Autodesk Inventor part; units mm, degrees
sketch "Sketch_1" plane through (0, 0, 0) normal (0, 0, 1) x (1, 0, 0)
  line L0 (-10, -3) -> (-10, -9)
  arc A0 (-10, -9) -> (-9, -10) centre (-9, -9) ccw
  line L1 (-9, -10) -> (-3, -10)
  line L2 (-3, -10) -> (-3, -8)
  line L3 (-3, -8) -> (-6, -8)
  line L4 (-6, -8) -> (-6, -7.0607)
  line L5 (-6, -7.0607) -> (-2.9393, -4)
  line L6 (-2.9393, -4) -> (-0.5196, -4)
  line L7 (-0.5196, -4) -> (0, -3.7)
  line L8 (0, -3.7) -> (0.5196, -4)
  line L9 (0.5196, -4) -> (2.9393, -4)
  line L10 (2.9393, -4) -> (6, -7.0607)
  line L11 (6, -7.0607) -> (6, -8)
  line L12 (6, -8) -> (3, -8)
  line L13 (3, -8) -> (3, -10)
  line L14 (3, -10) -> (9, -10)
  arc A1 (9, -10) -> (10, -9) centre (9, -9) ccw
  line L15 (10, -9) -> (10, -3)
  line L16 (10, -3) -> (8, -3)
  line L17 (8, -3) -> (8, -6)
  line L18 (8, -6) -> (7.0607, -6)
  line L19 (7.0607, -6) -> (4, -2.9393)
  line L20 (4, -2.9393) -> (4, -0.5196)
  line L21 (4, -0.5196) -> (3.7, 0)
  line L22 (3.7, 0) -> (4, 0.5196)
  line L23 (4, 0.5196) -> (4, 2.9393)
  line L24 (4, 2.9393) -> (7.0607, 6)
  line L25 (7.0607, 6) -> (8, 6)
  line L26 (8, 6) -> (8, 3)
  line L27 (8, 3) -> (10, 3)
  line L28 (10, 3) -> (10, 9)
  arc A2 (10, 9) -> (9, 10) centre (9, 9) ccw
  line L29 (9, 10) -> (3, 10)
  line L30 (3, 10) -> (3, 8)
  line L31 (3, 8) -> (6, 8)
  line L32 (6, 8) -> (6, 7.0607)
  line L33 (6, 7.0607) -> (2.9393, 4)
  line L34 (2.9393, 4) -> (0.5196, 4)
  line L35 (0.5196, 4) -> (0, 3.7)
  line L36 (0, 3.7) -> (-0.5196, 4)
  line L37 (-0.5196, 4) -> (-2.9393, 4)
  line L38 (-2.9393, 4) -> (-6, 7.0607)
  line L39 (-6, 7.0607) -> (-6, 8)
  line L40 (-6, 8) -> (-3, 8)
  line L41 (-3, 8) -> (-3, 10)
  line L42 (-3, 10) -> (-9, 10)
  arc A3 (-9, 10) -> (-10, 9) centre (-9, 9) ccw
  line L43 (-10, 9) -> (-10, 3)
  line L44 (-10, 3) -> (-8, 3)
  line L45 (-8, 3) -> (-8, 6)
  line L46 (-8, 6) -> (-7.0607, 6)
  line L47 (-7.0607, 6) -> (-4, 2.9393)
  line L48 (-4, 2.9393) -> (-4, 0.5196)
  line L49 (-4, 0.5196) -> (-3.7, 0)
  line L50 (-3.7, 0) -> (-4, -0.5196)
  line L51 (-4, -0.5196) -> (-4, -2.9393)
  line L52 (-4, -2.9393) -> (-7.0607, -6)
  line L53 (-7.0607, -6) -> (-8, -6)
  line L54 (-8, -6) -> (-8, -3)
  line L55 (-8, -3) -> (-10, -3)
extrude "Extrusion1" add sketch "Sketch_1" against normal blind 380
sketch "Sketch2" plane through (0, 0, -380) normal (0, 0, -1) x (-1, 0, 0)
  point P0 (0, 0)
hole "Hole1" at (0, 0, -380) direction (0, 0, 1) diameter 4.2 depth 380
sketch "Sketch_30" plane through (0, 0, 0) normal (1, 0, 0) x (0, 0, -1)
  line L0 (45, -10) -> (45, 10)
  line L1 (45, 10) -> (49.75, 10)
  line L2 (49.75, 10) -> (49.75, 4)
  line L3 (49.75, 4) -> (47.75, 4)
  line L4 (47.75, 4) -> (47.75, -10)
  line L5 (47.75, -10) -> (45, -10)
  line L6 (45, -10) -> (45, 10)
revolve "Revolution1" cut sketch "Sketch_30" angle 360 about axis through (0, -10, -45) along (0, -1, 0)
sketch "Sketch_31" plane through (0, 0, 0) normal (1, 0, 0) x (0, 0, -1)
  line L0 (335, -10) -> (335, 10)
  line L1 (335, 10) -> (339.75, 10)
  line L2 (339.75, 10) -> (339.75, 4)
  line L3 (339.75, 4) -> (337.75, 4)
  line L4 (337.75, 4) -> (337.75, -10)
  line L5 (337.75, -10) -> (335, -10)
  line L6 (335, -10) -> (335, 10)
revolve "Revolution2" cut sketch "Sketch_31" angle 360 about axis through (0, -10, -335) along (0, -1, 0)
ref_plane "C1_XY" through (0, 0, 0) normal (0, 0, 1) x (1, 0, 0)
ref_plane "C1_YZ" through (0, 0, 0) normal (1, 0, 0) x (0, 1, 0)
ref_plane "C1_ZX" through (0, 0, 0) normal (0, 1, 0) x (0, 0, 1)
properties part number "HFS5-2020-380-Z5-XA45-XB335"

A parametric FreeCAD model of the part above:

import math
import FreeCAD as App
import Part
import Sketcher
from FreeCAD import Vector
Q = App.Units.Quantity


def add_polygon(sketch, points):
    """Adds a closed chain of lines whose ends are joined by coincident constraints."""
    first, n = sketch.GeometryCount, len(points)
    for a, b in zip(points, points[1:] + points[:1]):
        sketch.addGeometry(Part.LineSegment(App.Vector(*a, 0), App.Vector(*b, 0)), False)
    for i in range(n):
        sketch.addConstraint(Sketcher.Constraint("Coincident", first + i, 2, first + (i + 1) % n, 1))

doc = App.newDocument("Part")
body = doc.addObject("PartDesign::Body", "Body")

sketch1 = body.newObject("Sketcher::SketchObject", "Sketch")
sketch1.AttachmentSupport = (doc.getObject("XY_Plane"), [""])
sketch1.MapMode = "FlatFace"
sketch1.addGeometry(Part.LineSegment(Vector(-8, -3, 0), Vector(-10, -3, 0)), False)
sketch1.addGeometry(Part.LineSegment(Vector(-10, -3, 0), Vector(-10, -9, 0)), False)
sketch1.addGeometry(Part.ArcOfCircle(Part.Circle(Vector(-9, -9, 0), Vector(0, 0, 1), 1), math.radians(180), math.radians(270)), False)
sketch1.addGeometry(Part.LineSegment(Vector(-9, -10, 0), Vector(-3, -10, 0)), False)
sketch1.addGeometry(Part.LineSegment(Vector(-3, -10, 0), Vector(-3, -8, 0)), False)
sketch1.addGeometry(Part.LineSegment(Vector(-3, -8, 0), Vector(-6, -8, 0)), False)
sketch1.addGeometry(Part.LineSegment(Vector(-6, -8, 0), Vector(-6, -7.0607, 0)), False)
sketch1.addGeometry(Part.LineSegment(Vector(-6, -7.0607, 0), Vector(-2.9393, -4, 0)), False)
sketch1.addGeometry(Part.LineSegment(Vector(-2.9393, -4, 0), Vector(-0.5196, -4, 0)), False)
sketch1.addGeometry(Part.LineSegment(Vector(-0.5196, -4, 0), Vector(0, -3.7, 0)), False)
sketch1.addGeometry(Part.LineSegment(Vector(0, -3.7, 0), Vector(0.5196, -4, 0)), False)
sketch1.addGeometry(Part.LineSegment(Vector(0.5196, -4, 0), Vector(2.9393, -4, 0)), False)
sketch1.addGeometry(Part.LineSegment(Vector(2.9393, -4, 0), Vector(6, -7.0607, 0)), False)
sketch1.addGeometry(Part.LineSegment(Vector(6, -7.0607, 0), Vector(6, -8, 0)), False)
sketch1.addGeometry(Part.LineSegment(Vector(6, -8, 0), Vector(3, -8, 0)), False)
sketch1.addGeometry(Part.LineSegment(Vector(3, -8, 0), Vector(3, -10, 0)), False)
sketch1.addGeometry(Part.LineSegment(Vector(3, -10, 0), Vector(9, -10, 0)), False)
sketch1.addGeometry(Part.ArcOfCircle(Part.Circle(Vector(9, -9, 0), Vector(0, 0, 1), 1), math.radians(-90), math.radians(0)), False)
sketch1.addGeometry(Part.LineSegment(Vector(10, -9, 0), Vector(10, -3, 0)), False)
sketch1.addGeometry(Part.LineSegment(Vector(10, -3, 0), Vector(8, -3, 0)), False)
sketch1.addGeometry(Part.LineSegment(Vector(8, -3, 0), Vector(8, -6, 0)), False)
sketch1.addGeometry(Part.LineSegment(Vector(8, -6, 0), Vector(7.0607, -6, 0)), False)
sketch1.addGeometry(Part.LineSegment(Vector(7.0607, -6, 0), Vector(4, -2.9393, 0)), False)
sketch1.addGeometry(Part.LineSegment(Vector(4, -2.9393, 0), Vector(4, -0.5196, 0)), False)
sketch1.addGeometry(Part.LineSegment(Vector(4, -0.5196, 0), Vector(3.7, 0, 0)), False)
sketch1.addGeometry(Part.LineSegment(Vector(3.7, 0, 0), Vector(4, 0.5196, 0)), False)
sketch1.addGeometry(Part.LineSegment(Vector(4, 0.5196, 0), Vector(4, 2.9393, 0)), False)
sketch1.addGeometry(Part.LineSegment(Vector(4, 2.9393, 0), Vector(7.0607, 6, 0)), False)
sketch1.addGeometry(Part.LineSegment(Vector(7.0607, 6, 0), Vector(8, 6, 0)), False)
sketch1.addGeometry(Part.LineSegment(Vector(8, 6, 0), Vector(8, 3, 0)), False)
sketch1.addGeometry(Part.LineSegment(Vector(8, 3, 0), Vector(10, 3, 0)), False)
sketch1.addGeometry(Part.LineSegment(Vector(10, 3, 0), Vector(10, 9, 0)), False)
sketch1.addGeometry(Part.ArcOfCircle(Part.Circle(Vector(9, 9, 0), Vector(0, 0, 1), 1), math.radians(0), math.radians(90)), False)
sketch1.addGeometry(Part.LineSegment(Vector(9, 10, 0), Vector(3, 10, 0)), False)
sketch1.addGeometry(Part.LineSegment(Vector(3, 10, 0), Vector(3, 8, 0)), False)
sketch1.addGeometry(Part.LineSegment(Vector(3, 8, 0), Vector(6, 8, 0)), False)
sketch1.addGeometry(Part.LineSegment(Vector(6, 8, 0), Vector(6, 7.0607, 0)), False)
sketch1.addGeometry(Part.LineSegment(Vector(6, 7.0607, 0), Vector(2.9393, 4, 0)), False)
sketch1.addGeometry(Part.LineSegment(Vector(2.9393, 4, 0), Vector(0.5196, 4, 0)), False)
sketch1.addGeometry(Part.LineSegment(Vector(0.5196, 4, 0), Vector(0, 3.7, 0)), False)
sketch1.addGeometry(Part.LineSegment(Vector(0, 3.7, 0), Vector(-0.5196, 4, 0)), False)
sketch1.addGeometry(Part.LineSegment(Vector(-0.5196, 4, 0), Vector(-2.9393, 4, 0)), False)
sketch1.addGeometry(Part.LineSegment(Vector(-2.9393, 4, 0), Vector(-6, 7.0607, 0)), False)
sketch1.addGeometry(Part.LineSegment(Vector(-6, 7.0607, 0), Vector(-6, 8, 0)), False)
sketch1.addGeometry(Part.LineSegment(Vector(-6, 8, 0), Vector(-3, 8, 0)), False)
sketch1.addGeometry(Part.LineSegment(Vector(-3, 8, 0), Vector(-3, 10, 0)), False)
sketch1.addGeometry(Part.LineSegment(Vector(-3, 10, 0), Vector(-9, 10, 0)), False)
sketch1.addGeometry(Part.ArcOfCircle(Part.Circle(Vector(-9, 9, 0), Vector(0, 0, 1), 1), math.radians(90), math.radians(180)), False)
sketch1.addGeometry(Part.LineSegment(Vector(-10, 9, 0), Vector(-10, 3, 0)), False)
sketch1.addGeometry(Part.LineSegment(Vector(-10, 3, 0), Vector(-8, 3, 0)), False)
sketch1.addGeometry(Part.LineSegment(Vector(-8, 3, 0), Vector(-8, 6, 0)), False)
sketch1.addGeometry(Part.LineSegment(Vector(-8, 6, 0), Vector(-7.0607, 6, 0)), False)
sketch1.addGeometry(Part.LineSegment(Vector(-7.0607, 6, 0), Vector(-4, 2.9393, 0)), False)
sketch1.addGeometry(Part.LineSegment(Vector(-4, 2.9393, 0), Vector(-4, 0.5196, 0)), False)
sketch1.addGeometry(Part.LineSegment(Vector(-4, 0.5196, 0), Vector(-3.7, 0, 0)), False)
sketch1.addGeometry(Part.LineSegment(Vector(-3.7, 0, 0), Vector(-4, -0.5196, 0)), False)
sketch1.addGeometry(Part.LineSegment(Vector(-4, -0.5196, 0), Vector(-4, -2.9393, 0)), False)
sketch1.addGeometry(Part.LineSegment(Vector(-4, -2.9393, 0), Vector(-7.0607, -6, 0)), False)
sketch1.addGeometry(Part.LineSegment(Vector(-7.0607, -6, 0), Vector(-8, -6, 0)), False)
sketch1.addGeometry(Part.LineSegment(Vector(-8, -6, 0), Vector(-8, -3, 0)), False)
sketch1.addConstraint(Sketcher.Constraint("Coincident", 0, 2, 1, 1))
sketch1.addConstraint(Sketcher.Constraint("Tangent", 1, 2, 2, 1))
sketch1.addConstraint(Sketcher.Constraint("Tangent", 2, 2, 3, 1))
sketch1.addConstraint(Sketcher.Constraint("Coincident", 3, 2, 4, 1))
sketch1.addConstraint(Sketcher.Constraint("Coincident", 4, 2, 5, 1))
sketch1.addConstraint(Sketcher.Constraint("Coincident", 5, 2, 6, 1))
sketch1.addConstraint(Sketcher.Constraint("Coincident", 6, 2, 7, 1))
sketch1.addConstraint(Sketcher.Constraint("Coincident", 7, 2, 8, 1))
sketch1.addConstraint(Sketcher.Constraint("Coincident", 8, 2, 9, 1))
sketch1.addConstraint(Sketcher.Constraint("Coincident", 9, 2, 10, 1))
sketch1.addConstraint(Sketcher.Constraint("Coincident", 10, 2, 11, 1))
sketch1.addConstraint(Sketcher.Constraint("Coincident", 11, 2, 12, 1))
sketch1.addConstraint(Sketcher.Constraint("Coincident", 12, 2, 13, 1))
sketch1.addConstraint(Sketcher.Constraint("Coincident", 13, 2, 14, 1))
sketch1.addConstraint(Sketcher.Constraint("Coincident", 14, 2, 15, 1))
sketch1.addConstraint(Sketcher.Constraint("Coincident", 15, 2, 16, 1))
sketch1.addConstraint(Sketcher.Constraint("Tangent", 16, 2, 17, 1))
sketch1.addConstraint(Sketcher.Constraint("Tangent", 17, 2, 18, 1))
sketch1.addConstraint(Sketcher.Constraint("Coincident", 18, 2, 19, 1))
sketch1.addConstraint(Sketcher.Constraint("Coincident", 19, 2, 20, 1))
sketch1.addConstraint(Sketcher.Constraint("Coincident", 20, 2, 21, 1))
sketch1.addConstraint(Sketcher.Constraint("Coincident", 21, 2, 22, 1))
sketch1.addConstraint(Sketcher.Constraint("Coincident", 22, 2, 23, 1))
sketch1.addConstraint(Sketcher.Constraint("Coincident", 23, 2, 24, 1))
sketch1.addConstraint(Sketcher.Constraint("Coincident", 24, 2, 25, 1))
sketch1.addConstraint(Sketcher.Constraint("Coincident", 25, 2, 26, 1))
sketch1.addConstraint(Sketcher.Constraint("Coincident", 26, 2, 27, 1))
sketch1.addConstraint(Sketcher.Constraint("Coincident", 27, 2, 28, 1))
sketch1.addConstraint(Sketcher.Constraint("Coincident", 28, 2, 29, 1))
sketch1.addConstraint(Sketcher.Constraint("Coincident", 29, 2, 30, 1))
sketch1.addConstraint(Sketcher.Constraint("Coincident", 30, 2, 31, 1))
sketch1.addConstraint(Sketcher.Constraint("Tangent", 31, 2, 32, 1))
sketch1.addConstraint(Sketcher.Constraint("Tangent", 32, 2, 33, 1))
sketch1.addConstraint(Sketcher.Constraint("Coincident", 33, 2, 34, 1))
sketch1.addConstraint(Sketcher.Constraint("Coincident", 34, 2, 35, 1))
sketch1.addConstraint(Sketcher.Constraint("Coincident", 35, 2, 36, 1))
sketch1.addConstraint(Sketcher.Constraint("Coincident", 36, 2, 37, 1))
sketch1.addConstraint(Sketcher.Constraint("Coincident", 37, 2, 38, 1))
sketch1.addConstraint(Sketcher.Constraint("Coincident", 38, 2, 39, 1))
sketch1.addConstraint(Sketcher.Constraint("Coincident", 39, 2, 40, 1))
sketch1.addConstraint(Sketcher.Constraint("Coincident", 40, 2, 41, 1))
sketch1.addConstraint(Sketcher.Constraint("Coincident", 41, 2, 42, 1))
sketch1.addConstraint(Sketcher.Constraint("Coincident", 42, 2, 43, 1))
sketch1.addConstraint(Sketcher.Constraint("Coincident", 43, 2, 44, 1))
sketch1.addConstraint(Sketcher.Constraint("Coincident", 44, 2, 45, 1))
sketch1.addConstraint(Sketcher.Constraint("Coincident", 45, 2, 46, 1))
sketch1.addConstraint(Sketcher.Constraint("Tangent", 46, 2, 47, 1))
sketch1.addConstraint(Sketcher.Constraint("Tangent", 47, 2, 48, 1))
sketch1.addConstraint(Sketcher.Constraint("Coincident", 48, 2, 49, 1))
sketch1.addConstraint(Sketcher.Constraint("Coincident", 49, 2, 50, 1))
sketch1.addConstraint(Sketcher.Constraint("Coincident", 50, 2, 51, 1))
sketch1.addConstraint(Sketcher.Constraint("Coincident", 51, 2, 52, 1))
sketch1.addConstraint(Sketcher.Constraint("Coincident", 52, 2, 53, 1))
sketch1.addConstraint(Sketcher.Constraint("Coincident", 53, 2, 54, 1))
sketch1.addConstraint(Sketcher.Constraint("Coincident", 54, 2, 55, 1))
sketch1.addConstraint(Sketcher.Constraint("Coincident", 55, 2, 56, 1))
sketch1.addConstraint(Sketcher.Constraint("Coincident", 56, 2, 57, 1))
sketch1.addConstraint(Sketcher.Constraint("Coincident", 57, 2, 58, 1))
sketch1.addConstraint(Sketcher.Constraint("Coincident", 58, 2, 59, 1))
sketch1.addConstraint(Sketcher.Constraint("Coincident", 59, 2, 0, 1))
sketch1.addConstraint(Sketcher.Constraint("Horizontal", 0))
sketch1.addConstraint(Sketcher.Constraint("Vertical", 1))
sketch1.addConstraint(Sketcher.Constraint("Horizontal", 3))
sketch1.addConstraint(Sketcher.Constraint("Vertical", 4))
sketch1.addConstraint(Sketcher.Constraint("Horizontal", 5))
sketch1.addConstraint(Sketcher.Constraint("Vertical", 6))
sketch1.addConstraint(Sketcher.Constraint("Horizontal", 8))
sketch1.addConstraint(Sketcher.Constraint("Horizontal", 11))
sketch1.addConstraint(Sketcher.Constraint("Vertical", 13))
sketch1.addConstraint(Sketcher.Constraint("Horizontal", 14))
sketch1.addConstraint(Sketcher.Constraint("Vertical", 15))
sketch1.addConstraint(Sketcher.Constraint("Horizontal", 16))
sketch1.addConstraint(Sketcher.Constraint("Vertical", 18))
sketch1.addConstraint(Sketcher.Constraint("Horizontal", 19))
sketch1.addConstraint(Sketcher.Constraint("Vertical", 20))
sketch1.addConstraint(Sketcher.Constraint("Horizontal", 21))
sketch1.addConstraint(Sketcher.Constraint("Vertical", 23))
sketch1.addConstraint(Sketcher.Constraint("Vertical", 26))
sketch1.addConstraint(Sketcher.Constraint("Horizontal", 28))
sketch1.addConstraint(Sketcher.Constraint("Vertical", 29))
sketch1.addConstraint(Sketcher.Constraint("Horizontal", 30))
sketch1.addConstraint(Sketcher.Constraint("Vertical", 31))
sketch1.addConstraint(Sketcher.Constraint("Horizontal", 33))
sketch1.addConstraint(Sketcher.Constraint("Vertical", 34))
sketch1.addConstraint(Sketcher.Constraint("Horizontal", 35))
sketch1.addConstraint(Sketcher.Constraint("Vertical", 36))
sketch1.addConstraint(Sketcher.Constraint("Horizontal", 38))
sketch1.addConstraint(Sketcher.Constraint("Horizontal", 41))
sketch1.addConstraint(Sketcher.Constraint("Vertical", 43))
sketch1.addConstraint(Sketcher.Constraint("Horizontal", 44))
sketch1.addConstraint(Sketcher.Constraint("Vertical", 45))
sketch1.addConstraint(Sketcher.Constraint("Horizontal", 46))
sketch1.addConstraint(Sketcher.Constraint("Vertical", 48))
sketch1.addConstraint(Sketcher.Constraint("Horizontal", 49))
sketch1.addConstraint(Sketcher.Constraint("Vertical", 50))
sketch1.addConstraint(Sketcher.Constraint("Horizontal", 51))
sketch1.addConstraint(Sketcher.Constraint("Vertical", 53))
sketch1.addConstraint(Sketcher.Constraint("Vertical", 56))
sketch1.addConstraint(Sketcher.Constraint("Horizontal", 58))
sketch1.addConstraint(Sketcher.Constraint("Vertical", 59))
sketch1.addConstraint(Sketcher.Constraint("Equal", 2, 17))
sketch1.addConstraint(Sketcher.Constraint("Equal", 17, 32))
sketch1.addConstraint(Sketcher.Constraint("Equal", 32, 47))
sketch1.addConstraint(Sketcher.Constraint("Symmetric", 2, 3, 32, 3, -1, 1))
sketch1.addConstraint(Sketcher.Constraint("Symmetric", 17, 3, 47, 3, -1, 1))
sketch1.addConstraint(Sketcher.Constraint("Symmetric", 4, 2, 34, 2, -1, 1))
sketch1.addConstraint(Sketcher.Constraint("Symmetric", 6, 2, 36, 2, -1, 1))
sketch1.addConstraint(Sketcher.Constraint("Symmetric", 7, 2, 37, 2, -1, 1))
sketch1.addConstraint(Sketcher.Constraint("Symmetric", 9, 2, 39, 2, -1, 1))
sketch1.addConstraint(Sketcher.Constraint("Symmetric", 10, 2, 40, 2, -1, 1))
sketch1.addConstraint(Sketcher.Constraint("Symmetric", 12, 2, 42, 2, -1, 1))
sketch1.addConstraint(Sketcher.Constraint("Symmetric", 14, 2, 44, 2, -1, 1))
sketch1.addConstraint(Sketcher.Constraint("Symmetric", 19, 2, 49, 2, -1, 1))
sketch1.addConstraint(Sketcher.Constraint("Symmetric", 21, 2, 51, 2, -1, 1))
sketch1.addConstraint(Sketcher.Constraint("Symmetric", 22, 2, 52, 2, -1, 1))
sketch1.addConstraint(Sketcher.Constraint("Symmetric", 24, 2, 54, 2, -1, 1))
sketch1.addConstraint(Sketcher.Constraint("Symmetric", 25, 2, 55, 2, -1, 1))
sketch1.addConstraint(Sketcher.Constraint("Symmetric", 27, 2, 57, 2, -1, 1))
sketch1.addConstraint(Sketcher.Constraint("Symmetric", 29, 2, 59, 2, -1, 1))
sketch1.addConstraint(Sketcher.Constraint("Symmetric", 2, 3, 17, 3, -2))
sketch1.addConstraint(Sketcher.Constraint("Symmetric", 8, 2, 10, 2, -2))
sketch1.addConstraint(Sketcher.Constraint("Symmetric", 6, 2, 12, 2, -2))
sketch1.addConstraint(Sketcher.Constraint("Symmetric", 4, 2, 14, 2, -2))
sketch1.addConstraint(Sketcher.Constraint("Symmetric", 29, 2, 49, 2, -2))
sketch1.addConstraint(Sketcher.Constraint("Symmetric", 27, 2, 51, 2, -2))
sketch1.addConstraint(Sketcher.Constraint("Symmetric", 26, 2, 52, 2, -2))
sketch1.addConstraint(Sketcher.Constraint("PointOnObject", 9, 2, -2))
sketch1.addConstraint(Sketcher.Constraint("PointOnObject", 24, 2, -1))
sketch1.addConstraint(Sketcher.Constraint("Perpendicular", 7, 12))
sketch1.addConstraint(Sketcher.Constraint("Parallel", 12, 22))
sketch1.addConstraint(Sketcher.Constraint("Perpendicular", 9, 24))
sketch1.addConstraint(Sketcher.Constraint("Perpendicular", 10, 25))
sketch1.addConstraint(Sketcher.Constraint("Perpendicular", 22, 27))
sketch1.addConstraint(Sketcher.Constraint("Perpendicular", 24, 39))
sketch1.addConstraint(Sketcher.Constraint("Perpendicular", 37, 42))
sketch1.addConstraint(Sketcher.Constraint("Perpendicular", 39, 54))
sketch1.addConstraint(Sketcher.Constraint("Perpendicular", 52, 57))
sketch1.addConstraint(Sketcher.Constraint("Equal", 46, 1))
sketch1.addConstraint(Sketcher.Constraint("Equal", 49, 4))
sketch1.addConstraint(Sketcher.Constraint("Equal", 58, 6))
sketch1.addConstraint(Sketcher.Constraint("Equal", 44, 20))
sketch1.addConstraint(Sketcher.Constraint("Equal", 41, 23))
sketch1.addConstraint(Sketcher.Constraint("Equal", 12, 22))
sketch1.addConstraint(Sketcher.Constraint("Equal", 10, 24))
sketch1.addConstraint(Sketcher.Constraint("Radius", 2, 1.0))
sketch1.addConstraint(Sketcher.Constraint("DistanceX", 0, 2, 0, 1, 2.0))
sketch1.addConstraint(Sketcher.Constraint("DistanceX", 3, 1, 3, 2, 6.0))
sketch1.addConstraint(Sketcher.Constraint("DistanceX", 5, 2, 5, 1, 3.0))
sketch1.addConstraint(Sketcher.Constraint("Angle", 9, Q("30.0007 deg")))
sketch1.addConstraint(Sketcher.Constraint("DistanceX", 2, 3, -1, 1, 9.0))
sketch1.addConstraint(Sketcher.Constraint("DistanceY", 7, 2, -1, 1, 4.0))
sketch1.addConstraint(Sketcher.Constraint("Distance", 9, 0.6))
sketch1.addConstraint(Sketcher.Constraint("DistanceX", 8, 1, 8, 2, 2.4197))
pad1 = body.newObject("PartDesign::Pad", "Pad")
pad1.Profile = sketch1
pad1.Length = 380
pad1.Reversed = True

sketch2 = body.newObject("Sketcher::SketchObject", "Sketch001")
sketch2.AttachmentSupport = (doc.getObject("XY_Plane"), [""])
sketch2.MapMode = "FlatFace"
sketch2.AttachmentOffset = App.Placement(Vector(0, 0, -380), App.Rotation())
sketch2.addGeometry(Part.Circle(Vector(0, 0, 0), Vector(0, 0, 1), 2.1), False)
sketch2.addConstraint(Sketcher.Constraint("Coincident", 0, 3, -1, 1))
sketch2.addConstraint(Sketcher.Constraint("Diameter", 0, 4.2))
doc.recompute()
hole = body.newObject("PartDesign::Hole", "Hole")
hole.Profile = sketch2
hole.ThreadType = "None"
hole.Diameter = 4.2
hole.DepthType = "Dimension"
hole.Depth = 380
hole.DrillPoint = "Flat"
hole.Reversed = True

sketch3 = body.newObject("Sketcher::SketchObject", "Sketch002")
sketch3.AttachmentSupport = (doc.getObject("YZ_Plane"), [""])
sketch3.MapMode = "FlatFace"
add_polygon(sketch3, [(10, -45), (-10, -45), (-10, -47.75), (4, -47.75), (4, -49.75), (10, -49.75)])
sketch3.addGeometry(Part.LineSegment(Vector(10, -45, 0), Vector(-10, -45, 0)), True)
sketch3.addConstraint(Sketcher.Constraint("Horizontal", 0))
sketch3.addConstraint(Sketcher.Constraint("Vertical", 1))
sketch3.addConstraint(Sketcher.Constraint("Horizontal", 2))
sketch3.addConstraint(Sketcher.Constraint("Vertical", 3))
sketch3.addConstraint(Sketcher.Constraint("Horizontal", 4))
sketch3.addConstraint(Sketcher.Constraint("Vertical", 5))
sketch3.addConstraint(Sketcher.Constraint("Horizontal", 6))
sketch3.addConstraint(Sketcher.Constraint("Coincident", 6, 1, 5, 2))
sketch3.addConstraint(Sketcher.Constraint("Vertical", 1, 2, 6, 2))
sketch3.addConstraint(Sketcher.Constraint("DistanceX", 0, 2, 0, 1, 20.0))
sketch3.addConstraint(Sketcher.Constraint("DistanceX", 2, 1, 2, 2, 14.0))
sketch3.addConstraint(Sketcher.Constraint("DistanceY", 3, 2, 3, 1, 2.0))
sketch3.addConstraint(Sketcher.Constraint("DistanceX", 0, 2, -1, 1, 10.0))
sketch3.addConstraint(Sketcher.Constraint("DistanceY", 0, 2, -1, 1, 45.0))
sketch3.addConstraint(Sketcher.Constraint("DistanceY", 1, 2, 1, 1, 2.75))
groove = body.newObject("PartDesign::Groove", "Groove")
groove.Profile = sketch3
groove.ReferenceAxis = (sketch3, ["Axis0"])
groove.Angle = 360

sketch4 = body.newObject("Sketcher::SketchObject", "Sketch003")
sketch4.AttachmentSupport = (doc.getObject("YZ_Plane"), [""])
sketch4.MapMode = "FlatFace"
add_polygon(sketch4, [(10, -335), (-10, -335), (-10, -337.75), (4, -337.75), (4, -339.75), (10, -339.75)])
sketch4.addGeometry(Part.LineSegment(Vector(10, -335, 0), Vector(-10, -335, 0)), True)
sketch4.addConstraint(Sketcher.Constraint("Horizontal", 0))
sketch4.addConstraint(Sketcher.Constraint("Vertical", 1))
sketch4.addConstraint(Sketcher.Constraint("Horizontal", 2))
sketch4.addConstraint(Sketcher.Constraint("Vertical", 3))
sketch4.addConstraint(Sketcher.Constraint("Horizontal", 4))
sketch4.addConstraint(Sketcher.Constraint("Vertical", 5))
sketch4.addConstraint(Sketcher.Constraint("Horizontal", 6))
sketch4.addConstraint(Sketcher.Constraint("Coincident", 6, 1, 5, 2))
sketch4.addConstraint(Sketcher.Constraint("Vertical", 1, 2, 6, 2))
sketch4.addConstraint(Sketcher.Constraint("DistanceX", 0, 2, 0, 1, 20.0))
sketch4.addConstraint(Sketcher.Constraint("DistanceX", 2, 1, 2, 2, 14.0))
sketch4.addConstraint(Sketcher.Constraint("DistanceY", 3, 2, 3, 1, 2.0))
sketch4.addConstraint(Sketcher.Constraint("DistanceX", 0, 2, -1, 1, 10.0))
sketch4.addConstraint(Sketcher.Constraint("DistanceY", 0, 2, -1, 1, 335.0))
sketch4.addConstraint(Sketcher.Constraint("DistanceY", 1, 2, 1, 1, 2.75))
groove2 = body.newObject("PartDesign::Groove", "Groove001")
groove2.Profile = sketch4
groove2.ReferenceAxis = (sketch4, ["Axis0"])
groove2.Angle = 360

doc.recompute()
